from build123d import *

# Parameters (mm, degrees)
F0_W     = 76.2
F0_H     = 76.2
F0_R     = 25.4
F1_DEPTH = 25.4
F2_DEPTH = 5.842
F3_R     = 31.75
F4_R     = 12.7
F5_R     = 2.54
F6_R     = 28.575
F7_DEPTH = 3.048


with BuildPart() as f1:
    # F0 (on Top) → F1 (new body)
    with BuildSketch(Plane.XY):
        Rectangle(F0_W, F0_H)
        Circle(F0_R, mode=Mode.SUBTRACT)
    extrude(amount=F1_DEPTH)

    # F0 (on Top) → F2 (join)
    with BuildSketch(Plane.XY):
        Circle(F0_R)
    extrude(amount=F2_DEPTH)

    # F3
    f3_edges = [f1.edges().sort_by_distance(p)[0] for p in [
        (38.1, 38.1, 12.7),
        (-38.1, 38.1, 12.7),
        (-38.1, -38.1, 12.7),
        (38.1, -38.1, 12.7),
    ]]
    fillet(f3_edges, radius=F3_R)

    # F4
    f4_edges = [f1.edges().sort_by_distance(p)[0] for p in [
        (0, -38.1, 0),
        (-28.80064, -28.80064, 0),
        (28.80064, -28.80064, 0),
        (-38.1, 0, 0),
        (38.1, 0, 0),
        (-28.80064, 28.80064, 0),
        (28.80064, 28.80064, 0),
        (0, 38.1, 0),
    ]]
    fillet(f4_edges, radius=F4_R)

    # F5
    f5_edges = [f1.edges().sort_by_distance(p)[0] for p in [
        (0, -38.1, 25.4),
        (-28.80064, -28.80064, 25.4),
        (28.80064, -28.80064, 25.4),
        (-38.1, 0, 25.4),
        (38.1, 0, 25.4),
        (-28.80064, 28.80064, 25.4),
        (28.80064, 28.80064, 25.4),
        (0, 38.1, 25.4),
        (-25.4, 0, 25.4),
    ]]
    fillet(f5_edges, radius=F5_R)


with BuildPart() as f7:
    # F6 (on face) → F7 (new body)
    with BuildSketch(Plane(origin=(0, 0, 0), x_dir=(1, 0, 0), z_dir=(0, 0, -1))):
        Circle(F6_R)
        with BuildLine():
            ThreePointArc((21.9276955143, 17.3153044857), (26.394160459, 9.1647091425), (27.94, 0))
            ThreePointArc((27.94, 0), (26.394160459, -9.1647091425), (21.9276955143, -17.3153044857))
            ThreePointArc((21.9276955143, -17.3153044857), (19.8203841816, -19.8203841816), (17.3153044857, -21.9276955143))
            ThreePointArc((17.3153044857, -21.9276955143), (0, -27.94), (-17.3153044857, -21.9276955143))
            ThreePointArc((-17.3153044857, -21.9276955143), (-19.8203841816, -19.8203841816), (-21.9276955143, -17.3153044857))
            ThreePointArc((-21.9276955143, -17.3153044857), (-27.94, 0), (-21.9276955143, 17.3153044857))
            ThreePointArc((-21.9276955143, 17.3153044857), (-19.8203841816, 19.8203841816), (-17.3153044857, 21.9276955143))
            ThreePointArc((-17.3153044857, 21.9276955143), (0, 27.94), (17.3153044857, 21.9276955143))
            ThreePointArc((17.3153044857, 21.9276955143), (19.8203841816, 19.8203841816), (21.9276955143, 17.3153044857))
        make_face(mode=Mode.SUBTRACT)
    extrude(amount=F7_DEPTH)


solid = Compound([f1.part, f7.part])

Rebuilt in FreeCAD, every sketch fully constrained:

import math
import FreeCAD as App
import Part
import Sketcher
from FreeCAD import Vector
Q = App.Units.Quantity


def edges_at(feature, points):
    """Names of the edges that pass closest to the given points."""
    edges = feature.Shape.Edges
    near = lambda p: min(range(len(edges)), key=lambda i: edges[i].distToShape(Part.Vertex(*p))[0])
    return sorted({f"Edge{near(p) + 1}" for p in points})

doc = App.newDocument("Part")
body = doc.addObject("PartDesign::Body", "Body")

sketch1 = body.newObject("Sketcher::SketchObject", "Sketch")
sketch1.AttachmentSupport = (doc.getObject("XY_Plane"), [""])
sketch1.MapMode = "FlatFace"
sketch1.addGeometry([
    Part.LineSegment(Vector(-38, 38, 0), Vector(-38, -38, 0)),
    Part.LineSegment(Vector(-38, -38, 0), Vector(38, -38, 0)),
    Part.LineSegment(Vector(38, -38, 0), Vector(38, 38, 0)),
    Part.LineSegment(Vector(38, 38, 0), Vector(-38, 38, 0)),
    Part.Circle(Vector(0, 0, 0), Vector(0, 0, 1), 25),
], False)
sketch1.addConstraint([
    Sketcher.Constraint("Coincident", 0, 2, 1, 1),
    Sketcher.Constraint("Coincident", 1, 2, 2, 1),
    Sketcher.Constraint("Coincident", 2, 2, 3, 1),
    Sketcher.Constraint("Coincident", 3, 2, 0, 1),
    Sketcher.Constraint("Vertical", 0),
    Sketcher.Constraint("Horizontal", 1),
    Sketcher.Constraint("Vertical", 2),
    Sketcher.Constraint("Horizontal", 3),
    Sketcher.Constraint("Coincident", 4, 3, -1, 1),
    Sketcher.Constraint("Symmetric", 0, 2, 2, 2, -1, 1),
    Sketcher.Constraint("Equal", 3, 0),
    Sketcher.Constraint("Diameter", 4, Q("2 in")),
    Sketcher.Constraint("DistanceX", 1, 1, 1, 2, Q("3 in")),
])
pad1 = body.newObject("PartDesign::Pad", "Pad")
pad1.Profile = sketch1
pad1.Length = Q("1 in")

sketch2 = body.newObject("Sketcher::SketchObject", "Sketch001")
sketch2.AttachmentSupport = (doc.getObject("XY_Plane"), [""])
sketch2.MapMode = "FlatFace"
sketch2.addGeometry(Part.Circle(Vector(0, 0, 0), Vector(0, 0, 1), 25), False)
sketch2.addConstraint([
    Sketcher.Constraint("Coincident", 0, 3, -1, 1),
    Sketcher.Constraint("Diameter", 0, Q("2 in")),
])
pad2 = body.newObject("PartDesign::Pad", "Pad001")
pad2.Profile = sketch2
pad2.Length = Q("0.23 in")
doc.recompute()

fillet = body.newObject("PartDesign::Fillet", "Fillet")
fillet.Base = (pad2, edges_at(pad2, [
    (38.1, 38.1, 12.7),
    (-38.1, 38.1, 12.7),
    (-38.1, -38.1, 12.7),
    (38.1, -38.1, 12.7),
]))
fillet.Radius = Q("1.25 in")
doc.recompute()

fillet2 = body.newObject("PartDesign::Fillet", "Fillet001")
fillet2.Base = (fillet, edges_at(fillet, [
    (0, -38.1, 0),
    (-28.801, -28.801, 0),
    (28.801, -28.801, 0),
    (-38.1, 0, 0),
    (38.1, 0, 0),
    (-28.801, 28.801, 0),
    (28.801, 28.801, 0),
    (0, 38.1, 0),
]))
fillet2.Radius = Q("0.5 in")
doc.recompute()

fillet3 = body.newObject("PartDesign::Fillet", "Fillet002")
fillet3.Base = (fillet2, edges_at(fillet2, [
    (0, -38.1, 25.4),
    (-28.801, -28.801, 25.4),
    (28.801, -28.801, 25.4),
    (-38.1, 0, 25.4),
    (38.1, 0, 25.4),
    (-28.801, 28.801, 25.4),
    (28.801, 28.801, 25.4),
    (0, 38.1, 25.4),
    (-25.4, 0, 25.4),
]))
fillet3.Radius = Q("0.1 in")
body2 = doc.addObject("PartDesign::Body", "Body001")

sketch3 = body2.newObject("Sketcher::SketchObject", "Sketch002")
sketch3.AttachmentSupport = (doc.getObject("XY_Plane001"), [""])
sketch3.MapMode = "FlatFace"
sketch3.addGeometry([
    Part.Circle(Vector(0, 0, 0), Vector(0, 0, 1), 29),
    Part.ArcOfCircle(Part.Circle(Vector(6, -6, 0), Vector(0, 0, 1), 19), math.radians(-54.86), math.radians(-35.14)),
    Part.ArcOfCircle(Part.Circle(Vector(0, 0, 0), Vector(0, 0, 1), 28), math.radians(-38), math.radians(0)),
    Part.ArcOfCircle(Part.Circle(Vector(0, 0, 0), Vector(0, 0, 1), 28), math.radians(0), math.radians(38)),
    Part.ArcOfCircle(Part.Circle(Vector(6, 6, 0), Vector(0, 0, 1), 19), math.radians(35.14), math.radians(54.86)),
    Part.ArcOfCircle(Part.Circle(Vector(0, 0, 0), Vector(0, 0, 1), 28), math.radians(52), math.radians(128)),
    Part.ArcOfCircle(Part.Circle(Vector(-6, 6, 0), Vector(0, 0, 1), 19), math.radians(125.14), math.radians(144.86)),
    Part.ArcOfCircle(Part.Circle(Vector(0, 0, 0), Vector(0, 0, 1), 28), math.radians(142), math.radians(218)),
    Part.ArcOfCircle(Part.Circle(Vector(-6, -6, 0), Vector(0, 0, 1), 19), math.radians(-144.86), math.radians(-125.14)),
    Part.ArcOfCircle(Part.Circle(Vector(0, 0, 0), Vector(0, 0, 1), 28), math.radians(-128), math.radians(-52)),
], False)
sketch3.addConstraint([
    Sketcher.Constraint("Coincident", 1, 2, 2, 1),
    Sketcher.Constraint("Tangent", 2, 2, 3, 1),
    Sketcher.Constraint("Coincident", 3, 2, 4, 1),
    Sketcher.Constraint("Coincident", 4, 2, 5, 1),
    Sketcher.Constraint("Coincident", 5, 2, 6, 1),
    Sketcher.Constraint("Coincident", 6, 2, 7, 1),
    Sketcher.Constraint("Coincident", 7, 2, 8, 1),
    Sketcher.Constraint("Coincident", 8, 2, 9, 1),
    Sketcher.Constraint("Coincident", 9, 2, 1, 1),
    Sketcher.Constraint("Coincident", 0, 3, -1, 1),
    Sketcher.Constraint("Coincident", 2, 3, -1, 1),
    Sketcher.Constraint("Coincident", 5, 3, -1, 1),
    Sketcher.Constraint("Coincident", 7, 3, -1, 1),
    Sketcher.Constraint("Coincident", 9, 3, -1, 1),
    Sketcher.Constraint("Equal", 2, 3),
    Sketcher.Constraint("Equal", 1, 4),
    Sketcher.Constraint("Equal", 3, 5),
    Sketcher.Constraint("Equal", 4, 6),
    Sketcher.Constraint("Equal", 5, 7),
    Sketcher.Constraint("Equal", 6, 8),
    Sketcher.Constraint("Equal", 7, 9),
    Sketcher.Constraint("Symmetric", 1, 3, 6, 3, -1, 1),
    Sketcher.Constraint("Symmetric", 4, 3, 8, 3, -1, 1),
    Sketcher.Constraint("Symmetric", 4, 3, 6, 3, -2),
    Sketcher.Constraint("PointOnObject", 2, 2, -1),
    Sketcher.Constraint("Radius", 2, Q("1.1 in")),
    Sketcher.Constraint("Diameter", 0, Q("2.25 in")),
    Sketcher.Constraint("Radius", 1, Q("0.75 in")),
    Sketcher.Constraint("DistanceY", 1, 3, 4, 3, Q("0.5 in")),
    Sketcher.Constraint("DistanceX", 6, 3, 4, 3, Q("0.5 in")),
])
pad3 = body2.newObject("PartDesign::Pad", "Pad002")
pad3.Profile = sketch3
pad3.Length = Q("0.12 in")
pad3.Reversed = True

doc.recompute()
